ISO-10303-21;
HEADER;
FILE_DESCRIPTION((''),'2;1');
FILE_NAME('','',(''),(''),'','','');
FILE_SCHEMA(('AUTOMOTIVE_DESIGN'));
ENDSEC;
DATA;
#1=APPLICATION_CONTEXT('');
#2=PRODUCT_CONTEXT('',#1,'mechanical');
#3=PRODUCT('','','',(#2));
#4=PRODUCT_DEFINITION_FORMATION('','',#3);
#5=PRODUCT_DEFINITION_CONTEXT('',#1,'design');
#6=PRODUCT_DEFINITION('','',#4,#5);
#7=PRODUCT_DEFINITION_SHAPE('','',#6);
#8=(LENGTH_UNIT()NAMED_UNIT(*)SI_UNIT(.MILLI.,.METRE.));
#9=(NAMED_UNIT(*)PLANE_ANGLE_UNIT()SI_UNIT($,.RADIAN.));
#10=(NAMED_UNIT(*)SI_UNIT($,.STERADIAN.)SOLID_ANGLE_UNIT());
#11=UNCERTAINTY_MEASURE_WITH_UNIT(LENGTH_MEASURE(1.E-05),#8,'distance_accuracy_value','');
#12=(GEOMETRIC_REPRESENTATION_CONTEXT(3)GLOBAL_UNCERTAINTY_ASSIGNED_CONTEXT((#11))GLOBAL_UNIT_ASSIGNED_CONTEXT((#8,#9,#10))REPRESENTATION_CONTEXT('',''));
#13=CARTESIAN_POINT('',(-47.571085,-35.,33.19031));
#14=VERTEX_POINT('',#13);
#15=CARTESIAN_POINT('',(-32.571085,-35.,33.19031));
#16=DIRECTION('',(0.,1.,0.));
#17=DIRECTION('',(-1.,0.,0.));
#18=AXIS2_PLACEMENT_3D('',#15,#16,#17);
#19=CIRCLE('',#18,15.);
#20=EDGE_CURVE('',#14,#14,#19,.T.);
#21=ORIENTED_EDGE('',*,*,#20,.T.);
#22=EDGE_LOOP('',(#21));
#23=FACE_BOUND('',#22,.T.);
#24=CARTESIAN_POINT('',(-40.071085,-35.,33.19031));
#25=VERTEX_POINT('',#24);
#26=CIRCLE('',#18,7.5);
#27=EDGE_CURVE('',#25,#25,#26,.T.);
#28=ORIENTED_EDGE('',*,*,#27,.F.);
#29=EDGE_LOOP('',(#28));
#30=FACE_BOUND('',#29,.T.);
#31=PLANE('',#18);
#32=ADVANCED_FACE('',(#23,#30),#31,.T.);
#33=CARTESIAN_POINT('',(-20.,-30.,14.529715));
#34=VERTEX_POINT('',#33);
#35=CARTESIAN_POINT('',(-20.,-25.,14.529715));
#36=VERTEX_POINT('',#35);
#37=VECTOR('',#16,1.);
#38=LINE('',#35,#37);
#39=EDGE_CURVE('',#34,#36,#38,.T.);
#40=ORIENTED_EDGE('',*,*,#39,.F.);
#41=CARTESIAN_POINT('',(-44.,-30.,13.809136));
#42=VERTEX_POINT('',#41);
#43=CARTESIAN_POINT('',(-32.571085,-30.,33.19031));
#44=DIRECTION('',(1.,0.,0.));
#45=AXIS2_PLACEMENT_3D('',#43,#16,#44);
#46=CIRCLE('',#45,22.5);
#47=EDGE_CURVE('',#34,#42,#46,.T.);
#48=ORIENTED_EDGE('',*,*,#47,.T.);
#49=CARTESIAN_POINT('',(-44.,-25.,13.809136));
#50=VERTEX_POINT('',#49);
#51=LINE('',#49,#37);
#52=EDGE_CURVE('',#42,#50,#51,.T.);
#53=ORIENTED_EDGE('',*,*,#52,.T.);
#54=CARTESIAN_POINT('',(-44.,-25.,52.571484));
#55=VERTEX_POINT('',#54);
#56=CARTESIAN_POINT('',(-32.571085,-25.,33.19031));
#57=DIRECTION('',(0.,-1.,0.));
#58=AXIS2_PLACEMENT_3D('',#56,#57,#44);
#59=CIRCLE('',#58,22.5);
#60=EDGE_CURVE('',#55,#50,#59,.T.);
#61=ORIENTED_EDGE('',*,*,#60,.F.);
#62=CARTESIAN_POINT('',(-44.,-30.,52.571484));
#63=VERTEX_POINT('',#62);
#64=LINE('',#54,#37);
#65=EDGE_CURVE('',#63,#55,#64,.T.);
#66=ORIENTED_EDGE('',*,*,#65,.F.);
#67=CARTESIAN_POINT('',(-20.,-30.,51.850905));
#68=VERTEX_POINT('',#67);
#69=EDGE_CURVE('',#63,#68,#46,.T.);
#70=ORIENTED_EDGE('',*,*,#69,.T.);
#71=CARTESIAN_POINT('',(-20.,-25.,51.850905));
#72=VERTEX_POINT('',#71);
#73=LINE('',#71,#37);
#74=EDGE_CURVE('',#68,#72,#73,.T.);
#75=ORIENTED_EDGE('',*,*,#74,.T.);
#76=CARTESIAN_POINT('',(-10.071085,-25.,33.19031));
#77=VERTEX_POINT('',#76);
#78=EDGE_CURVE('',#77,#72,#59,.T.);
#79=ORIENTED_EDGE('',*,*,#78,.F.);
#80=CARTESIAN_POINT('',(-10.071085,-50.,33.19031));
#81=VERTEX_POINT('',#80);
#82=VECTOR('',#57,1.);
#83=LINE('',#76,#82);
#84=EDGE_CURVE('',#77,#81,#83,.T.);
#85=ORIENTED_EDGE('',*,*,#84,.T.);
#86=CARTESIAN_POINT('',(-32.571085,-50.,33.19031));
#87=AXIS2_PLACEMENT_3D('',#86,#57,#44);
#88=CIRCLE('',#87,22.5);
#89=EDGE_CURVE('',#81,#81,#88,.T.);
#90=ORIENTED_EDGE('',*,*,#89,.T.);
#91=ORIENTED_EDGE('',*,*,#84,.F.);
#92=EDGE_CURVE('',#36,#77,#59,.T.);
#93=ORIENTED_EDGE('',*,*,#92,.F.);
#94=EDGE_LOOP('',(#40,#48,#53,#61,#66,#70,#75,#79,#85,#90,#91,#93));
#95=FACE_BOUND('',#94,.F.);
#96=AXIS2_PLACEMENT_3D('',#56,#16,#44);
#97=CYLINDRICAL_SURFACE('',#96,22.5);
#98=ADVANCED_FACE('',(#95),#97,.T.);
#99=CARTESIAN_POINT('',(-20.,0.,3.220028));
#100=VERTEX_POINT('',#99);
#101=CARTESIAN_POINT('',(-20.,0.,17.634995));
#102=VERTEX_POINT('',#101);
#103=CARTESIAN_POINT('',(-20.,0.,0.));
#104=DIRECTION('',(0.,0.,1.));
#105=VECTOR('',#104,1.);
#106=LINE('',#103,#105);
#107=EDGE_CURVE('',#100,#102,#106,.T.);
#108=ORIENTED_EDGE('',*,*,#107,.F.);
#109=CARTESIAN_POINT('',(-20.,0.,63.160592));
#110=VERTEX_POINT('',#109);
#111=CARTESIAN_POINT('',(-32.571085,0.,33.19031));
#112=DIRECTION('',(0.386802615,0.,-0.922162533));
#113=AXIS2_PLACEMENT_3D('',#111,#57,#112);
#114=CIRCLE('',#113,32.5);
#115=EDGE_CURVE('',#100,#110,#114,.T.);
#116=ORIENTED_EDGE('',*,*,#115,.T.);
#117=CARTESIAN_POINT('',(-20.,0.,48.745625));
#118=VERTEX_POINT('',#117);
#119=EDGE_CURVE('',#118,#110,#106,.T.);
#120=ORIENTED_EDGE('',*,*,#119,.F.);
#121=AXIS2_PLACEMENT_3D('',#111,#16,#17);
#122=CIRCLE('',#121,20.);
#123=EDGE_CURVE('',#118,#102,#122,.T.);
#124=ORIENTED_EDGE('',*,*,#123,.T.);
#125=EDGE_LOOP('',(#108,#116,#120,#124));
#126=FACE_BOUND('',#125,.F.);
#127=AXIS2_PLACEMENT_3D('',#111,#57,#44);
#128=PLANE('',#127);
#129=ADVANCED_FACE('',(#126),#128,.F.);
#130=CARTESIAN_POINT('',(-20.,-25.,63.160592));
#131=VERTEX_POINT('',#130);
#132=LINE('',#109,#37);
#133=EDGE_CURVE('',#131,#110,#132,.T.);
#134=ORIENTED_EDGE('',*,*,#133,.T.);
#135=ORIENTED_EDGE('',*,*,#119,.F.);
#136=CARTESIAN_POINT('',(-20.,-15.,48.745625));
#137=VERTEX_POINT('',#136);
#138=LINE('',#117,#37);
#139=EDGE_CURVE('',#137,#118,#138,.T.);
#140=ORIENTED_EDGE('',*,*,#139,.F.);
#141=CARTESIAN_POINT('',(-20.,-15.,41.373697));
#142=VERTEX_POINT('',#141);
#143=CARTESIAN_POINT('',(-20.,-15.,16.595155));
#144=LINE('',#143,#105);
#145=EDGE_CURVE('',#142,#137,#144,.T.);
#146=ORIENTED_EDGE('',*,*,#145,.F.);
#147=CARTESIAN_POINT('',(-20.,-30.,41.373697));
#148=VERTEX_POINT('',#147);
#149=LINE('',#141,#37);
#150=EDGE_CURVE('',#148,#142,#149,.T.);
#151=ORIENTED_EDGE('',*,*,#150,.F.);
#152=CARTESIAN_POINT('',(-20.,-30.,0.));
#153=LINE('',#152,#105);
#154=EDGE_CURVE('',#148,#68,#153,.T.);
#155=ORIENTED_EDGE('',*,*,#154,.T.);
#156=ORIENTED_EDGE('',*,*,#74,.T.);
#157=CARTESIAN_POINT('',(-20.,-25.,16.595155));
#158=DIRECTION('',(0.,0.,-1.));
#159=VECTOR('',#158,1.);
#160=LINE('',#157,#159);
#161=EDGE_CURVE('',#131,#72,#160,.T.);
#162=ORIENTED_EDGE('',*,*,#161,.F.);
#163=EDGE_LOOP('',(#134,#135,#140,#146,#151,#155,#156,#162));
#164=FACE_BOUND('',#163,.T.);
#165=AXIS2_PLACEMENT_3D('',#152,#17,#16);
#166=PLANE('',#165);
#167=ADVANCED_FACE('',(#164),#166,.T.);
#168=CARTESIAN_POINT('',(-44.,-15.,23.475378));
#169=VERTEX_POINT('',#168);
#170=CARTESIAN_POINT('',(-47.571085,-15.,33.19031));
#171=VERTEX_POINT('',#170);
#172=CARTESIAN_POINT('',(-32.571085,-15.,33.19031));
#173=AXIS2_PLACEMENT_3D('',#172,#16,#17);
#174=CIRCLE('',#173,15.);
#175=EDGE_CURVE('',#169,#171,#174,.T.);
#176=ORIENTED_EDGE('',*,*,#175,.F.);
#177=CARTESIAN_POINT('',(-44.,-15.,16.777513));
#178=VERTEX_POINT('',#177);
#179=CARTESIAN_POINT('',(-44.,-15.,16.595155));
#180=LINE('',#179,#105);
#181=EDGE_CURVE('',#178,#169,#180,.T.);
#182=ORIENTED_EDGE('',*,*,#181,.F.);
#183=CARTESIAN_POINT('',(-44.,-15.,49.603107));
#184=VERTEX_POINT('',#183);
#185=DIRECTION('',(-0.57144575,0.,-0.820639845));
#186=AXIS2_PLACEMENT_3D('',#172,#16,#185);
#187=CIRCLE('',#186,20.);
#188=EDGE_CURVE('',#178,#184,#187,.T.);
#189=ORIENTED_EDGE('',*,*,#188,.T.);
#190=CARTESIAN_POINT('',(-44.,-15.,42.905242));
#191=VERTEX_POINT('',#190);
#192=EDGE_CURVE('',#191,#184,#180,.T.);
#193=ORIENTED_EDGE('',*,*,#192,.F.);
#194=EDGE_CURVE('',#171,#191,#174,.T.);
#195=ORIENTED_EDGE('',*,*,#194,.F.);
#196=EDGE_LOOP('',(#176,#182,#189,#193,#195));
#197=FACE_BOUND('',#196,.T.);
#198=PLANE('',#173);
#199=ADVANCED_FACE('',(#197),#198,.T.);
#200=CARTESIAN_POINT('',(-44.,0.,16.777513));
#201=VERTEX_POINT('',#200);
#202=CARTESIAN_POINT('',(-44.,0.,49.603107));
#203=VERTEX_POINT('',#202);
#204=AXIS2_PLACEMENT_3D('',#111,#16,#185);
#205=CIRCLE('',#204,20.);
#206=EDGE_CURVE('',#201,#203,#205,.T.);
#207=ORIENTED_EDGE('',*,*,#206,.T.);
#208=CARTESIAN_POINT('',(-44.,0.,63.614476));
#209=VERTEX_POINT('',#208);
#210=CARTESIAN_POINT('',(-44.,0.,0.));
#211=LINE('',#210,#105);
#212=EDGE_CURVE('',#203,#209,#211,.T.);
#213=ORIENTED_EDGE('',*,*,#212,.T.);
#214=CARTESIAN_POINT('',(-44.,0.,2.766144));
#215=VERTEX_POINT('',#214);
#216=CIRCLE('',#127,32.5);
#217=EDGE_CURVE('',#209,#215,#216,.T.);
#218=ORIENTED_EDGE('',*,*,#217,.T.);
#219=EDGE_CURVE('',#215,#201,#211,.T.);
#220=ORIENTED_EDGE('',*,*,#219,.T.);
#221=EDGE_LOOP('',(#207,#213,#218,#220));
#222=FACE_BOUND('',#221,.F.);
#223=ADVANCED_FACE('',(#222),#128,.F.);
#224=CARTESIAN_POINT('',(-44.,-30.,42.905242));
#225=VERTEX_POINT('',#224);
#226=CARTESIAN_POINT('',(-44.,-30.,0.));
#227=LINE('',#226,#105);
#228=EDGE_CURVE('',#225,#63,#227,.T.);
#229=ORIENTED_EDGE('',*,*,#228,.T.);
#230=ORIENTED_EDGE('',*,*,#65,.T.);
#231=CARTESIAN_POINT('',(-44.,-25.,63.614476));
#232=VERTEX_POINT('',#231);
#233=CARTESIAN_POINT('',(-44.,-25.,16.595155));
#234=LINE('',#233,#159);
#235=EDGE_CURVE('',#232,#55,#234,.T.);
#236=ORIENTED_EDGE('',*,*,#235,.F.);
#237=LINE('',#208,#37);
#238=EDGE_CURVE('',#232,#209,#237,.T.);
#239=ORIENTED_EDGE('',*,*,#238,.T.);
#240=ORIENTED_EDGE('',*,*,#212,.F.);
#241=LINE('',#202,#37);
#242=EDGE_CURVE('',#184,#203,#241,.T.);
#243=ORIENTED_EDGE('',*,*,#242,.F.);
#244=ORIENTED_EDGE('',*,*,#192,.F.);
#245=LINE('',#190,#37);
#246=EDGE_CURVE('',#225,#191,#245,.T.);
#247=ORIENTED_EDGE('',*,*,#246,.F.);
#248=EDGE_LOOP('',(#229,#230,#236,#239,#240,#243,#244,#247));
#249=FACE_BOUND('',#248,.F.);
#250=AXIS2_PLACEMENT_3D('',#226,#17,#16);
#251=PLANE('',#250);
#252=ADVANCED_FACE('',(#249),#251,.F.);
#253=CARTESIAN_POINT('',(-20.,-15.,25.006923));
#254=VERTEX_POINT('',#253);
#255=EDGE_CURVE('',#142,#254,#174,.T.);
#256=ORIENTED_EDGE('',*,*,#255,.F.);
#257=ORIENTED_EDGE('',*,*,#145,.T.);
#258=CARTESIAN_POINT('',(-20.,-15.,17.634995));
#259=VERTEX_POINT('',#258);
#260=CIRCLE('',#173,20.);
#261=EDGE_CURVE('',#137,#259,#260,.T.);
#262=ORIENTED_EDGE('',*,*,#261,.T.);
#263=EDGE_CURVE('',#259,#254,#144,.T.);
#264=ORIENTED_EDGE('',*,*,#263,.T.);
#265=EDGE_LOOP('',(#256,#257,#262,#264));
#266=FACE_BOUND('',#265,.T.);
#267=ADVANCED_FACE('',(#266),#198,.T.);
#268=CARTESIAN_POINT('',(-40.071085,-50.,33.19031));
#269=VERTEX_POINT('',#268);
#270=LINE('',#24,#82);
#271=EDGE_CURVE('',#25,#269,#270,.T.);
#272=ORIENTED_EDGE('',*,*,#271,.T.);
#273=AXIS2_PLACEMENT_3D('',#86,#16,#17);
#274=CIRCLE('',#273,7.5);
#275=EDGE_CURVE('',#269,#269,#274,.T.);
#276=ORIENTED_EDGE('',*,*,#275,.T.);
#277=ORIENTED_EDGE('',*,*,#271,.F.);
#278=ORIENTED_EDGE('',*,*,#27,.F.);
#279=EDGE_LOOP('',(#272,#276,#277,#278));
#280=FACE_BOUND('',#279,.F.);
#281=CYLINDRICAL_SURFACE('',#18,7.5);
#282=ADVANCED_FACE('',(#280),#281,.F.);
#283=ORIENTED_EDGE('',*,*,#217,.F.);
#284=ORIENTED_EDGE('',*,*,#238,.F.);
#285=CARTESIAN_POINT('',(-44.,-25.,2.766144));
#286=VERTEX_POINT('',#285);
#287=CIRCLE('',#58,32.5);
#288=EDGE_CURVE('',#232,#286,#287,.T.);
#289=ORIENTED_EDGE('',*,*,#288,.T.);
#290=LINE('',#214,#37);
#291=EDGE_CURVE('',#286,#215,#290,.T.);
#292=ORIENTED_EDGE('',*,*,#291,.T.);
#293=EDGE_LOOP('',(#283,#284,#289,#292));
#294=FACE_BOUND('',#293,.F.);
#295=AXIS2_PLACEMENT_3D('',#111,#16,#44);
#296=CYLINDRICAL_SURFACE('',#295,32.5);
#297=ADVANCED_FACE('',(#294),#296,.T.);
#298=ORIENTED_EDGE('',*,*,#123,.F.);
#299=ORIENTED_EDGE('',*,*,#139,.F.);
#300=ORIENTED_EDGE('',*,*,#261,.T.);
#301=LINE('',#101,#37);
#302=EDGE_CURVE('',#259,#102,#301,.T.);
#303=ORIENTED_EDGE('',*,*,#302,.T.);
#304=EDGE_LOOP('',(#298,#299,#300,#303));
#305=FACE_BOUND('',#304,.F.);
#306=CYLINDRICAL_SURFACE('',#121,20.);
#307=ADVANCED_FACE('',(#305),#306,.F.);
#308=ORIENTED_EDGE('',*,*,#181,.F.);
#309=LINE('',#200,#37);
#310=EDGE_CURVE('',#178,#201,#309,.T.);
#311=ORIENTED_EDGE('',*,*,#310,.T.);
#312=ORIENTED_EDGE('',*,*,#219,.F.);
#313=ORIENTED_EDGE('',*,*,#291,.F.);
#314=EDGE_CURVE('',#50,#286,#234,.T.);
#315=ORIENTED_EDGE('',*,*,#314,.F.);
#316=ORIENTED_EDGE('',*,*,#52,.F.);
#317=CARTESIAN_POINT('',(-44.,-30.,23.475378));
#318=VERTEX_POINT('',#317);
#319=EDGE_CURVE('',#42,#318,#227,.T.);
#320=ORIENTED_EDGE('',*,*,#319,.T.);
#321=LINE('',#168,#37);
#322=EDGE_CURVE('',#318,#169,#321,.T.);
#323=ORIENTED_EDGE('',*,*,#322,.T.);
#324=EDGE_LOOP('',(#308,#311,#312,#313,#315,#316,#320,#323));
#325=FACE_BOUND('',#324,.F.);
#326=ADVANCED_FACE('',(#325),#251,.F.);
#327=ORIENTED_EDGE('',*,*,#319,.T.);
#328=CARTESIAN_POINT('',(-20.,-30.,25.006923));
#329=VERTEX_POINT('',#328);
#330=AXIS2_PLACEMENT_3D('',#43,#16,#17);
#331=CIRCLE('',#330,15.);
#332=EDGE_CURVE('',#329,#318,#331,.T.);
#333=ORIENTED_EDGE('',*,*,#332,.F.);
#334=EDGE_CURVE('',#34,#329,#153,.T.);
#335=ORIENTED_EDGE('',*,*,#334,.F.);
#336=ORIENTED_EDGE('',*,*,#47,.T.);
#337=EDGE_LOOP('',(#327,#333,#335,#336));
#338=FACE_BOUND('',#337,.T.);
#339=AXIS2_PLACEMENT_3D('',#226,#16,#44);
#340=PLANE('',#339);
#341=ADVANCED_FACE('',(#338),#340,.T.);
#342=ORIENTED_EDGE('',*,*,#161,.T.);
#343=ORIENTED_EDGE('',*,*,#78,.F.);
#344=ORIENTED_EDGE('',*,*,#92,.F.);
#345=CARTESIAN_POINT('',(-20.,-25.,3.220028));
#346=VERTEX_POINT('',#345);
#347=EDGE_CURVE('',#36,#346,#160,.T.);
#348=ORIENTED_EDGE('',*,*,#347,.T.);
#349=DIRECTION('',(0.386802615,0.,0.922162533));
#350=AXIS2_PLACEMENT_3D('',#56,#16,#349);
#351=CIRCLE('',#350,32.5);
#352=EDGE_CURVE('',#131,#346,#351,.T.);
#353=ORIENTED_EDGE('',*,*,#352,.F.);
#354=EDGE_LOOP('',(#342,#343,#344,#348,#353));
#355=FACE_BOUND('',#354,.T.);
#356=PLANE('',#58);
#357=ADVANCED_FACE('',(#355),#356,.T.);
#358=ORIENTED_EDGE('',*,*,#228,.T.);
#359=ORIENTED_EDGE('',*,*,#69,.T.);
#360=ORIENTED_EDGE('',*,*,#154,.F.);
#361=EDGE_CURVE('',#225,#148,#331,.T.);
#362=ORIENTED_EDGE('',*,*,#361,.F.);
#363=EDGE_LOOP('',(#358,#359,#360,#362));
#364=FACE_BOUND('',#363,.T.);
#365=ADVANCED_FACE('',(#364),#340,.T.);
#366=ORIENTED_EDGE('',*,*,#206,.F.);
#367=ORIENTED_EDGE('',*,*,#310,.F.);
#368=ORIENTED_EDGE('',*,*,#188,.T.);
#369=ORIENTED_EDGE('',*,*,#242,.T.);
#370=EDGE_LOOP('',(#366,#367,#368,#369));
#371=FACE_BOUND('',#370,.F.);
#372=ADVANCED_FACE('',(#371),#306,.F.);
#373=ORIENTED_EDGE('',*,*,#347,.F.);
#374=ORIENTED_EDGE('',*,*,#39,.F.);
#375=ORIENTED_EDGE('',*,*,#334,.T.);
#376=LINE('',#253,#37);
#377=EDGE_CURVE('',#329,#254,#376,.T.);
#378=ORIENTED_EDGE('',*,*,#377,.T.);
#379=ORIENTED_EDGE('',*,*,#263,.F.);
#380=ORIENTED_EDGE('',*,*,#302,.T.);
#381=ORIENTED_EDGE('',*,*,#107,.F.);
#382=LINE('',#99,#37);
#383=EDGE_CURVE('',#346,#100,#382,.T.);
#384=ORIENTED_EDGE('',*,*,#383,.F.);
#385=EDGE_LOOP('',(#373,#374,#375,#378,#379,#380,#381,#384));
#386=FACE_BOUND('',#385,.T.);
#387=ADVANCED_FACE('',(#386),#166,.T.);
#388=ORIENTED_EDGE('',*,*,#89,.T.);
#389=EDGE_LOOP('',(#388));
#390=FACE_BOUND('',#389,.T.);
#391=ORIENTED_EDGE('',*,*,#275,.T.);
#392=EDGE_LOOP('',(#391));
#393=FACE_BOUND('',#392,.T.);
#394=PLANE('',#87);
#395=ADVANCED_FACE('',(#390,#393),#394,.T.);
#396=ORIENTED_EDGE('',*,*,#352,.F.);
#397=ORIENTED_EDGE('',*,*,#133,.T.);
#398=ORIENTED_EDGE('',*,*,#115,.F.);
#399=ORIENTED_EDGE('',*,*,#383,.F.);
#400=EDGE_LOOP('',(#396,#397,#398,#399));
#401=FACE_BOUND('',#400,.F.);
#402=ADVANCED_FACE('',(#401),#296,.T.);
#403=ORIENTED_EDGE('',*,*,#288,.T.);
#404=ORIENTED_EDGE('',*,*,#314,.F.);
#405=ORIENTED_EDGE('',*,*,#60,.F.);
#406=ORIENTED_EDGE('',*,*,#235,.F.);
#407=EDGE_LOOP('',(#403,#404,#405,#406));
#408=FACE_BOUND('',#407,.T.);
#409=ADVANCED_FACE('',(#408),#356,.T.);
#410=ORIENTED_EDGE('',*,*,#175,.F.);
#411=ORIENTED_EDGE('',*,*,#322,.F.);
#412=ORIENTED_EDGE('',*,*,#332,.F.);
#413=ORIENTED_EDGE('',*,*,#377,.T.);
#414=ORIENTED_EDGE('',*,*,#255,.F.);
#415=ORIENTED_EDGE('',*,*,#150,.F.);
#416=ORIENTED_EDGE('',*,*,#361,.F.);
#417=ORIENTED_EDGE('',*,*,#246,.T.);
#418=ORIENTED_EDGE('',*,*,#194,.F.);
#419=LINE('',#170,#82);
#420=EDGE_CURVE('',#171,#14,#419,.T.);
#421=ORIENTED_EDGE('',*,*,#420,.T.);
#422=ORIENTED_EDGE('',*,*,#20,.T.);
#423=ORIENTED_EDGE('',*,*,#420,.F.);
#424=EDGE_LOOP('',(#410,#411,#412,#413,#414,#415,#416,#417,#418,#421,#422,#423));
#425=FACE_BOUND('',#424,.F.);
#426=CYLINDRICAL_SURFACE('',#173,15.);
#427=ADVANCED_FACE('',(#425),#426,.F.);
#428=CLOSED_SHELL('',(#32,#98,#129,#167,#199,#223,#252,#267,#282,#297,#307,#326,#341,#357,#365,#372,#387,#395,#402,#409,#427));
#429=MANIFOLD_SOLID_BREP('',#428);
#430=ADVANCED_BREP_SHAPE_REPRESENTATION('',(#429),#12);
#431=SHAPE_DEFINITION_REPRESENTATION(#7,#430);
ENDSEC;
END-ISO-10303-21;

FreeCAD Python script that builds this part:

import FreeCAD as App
import Part
import Sketcher
from FreeCAD import Vector
Q = App.Units.Quantity

doc = App.newDocument("Part")
body = doc.addObject("PartDesign::Body", "Body")

# Sketch on XZ plane
sketch1 = body.newObject("Sketcher::SketchObject", "Sketch")
sketch1.AttachmentSupport = (doc.getObject("XZ_Plane"), [""])
sketch1.MapMode = "FlatFace"
sketch1.addGeometry(Part.Circle(Vector(-32.571085, 33.19031, 0), Vector(0, 0, 1), 32.5), False)
sketch1.addConstraint(Sketcher.Constraint("Diameter", 0, Q("65 mm")))
sketch1.addConstraint(Sketcher.Constraint("DistanceY", -1, 1, 0, 3, Q("33.19031 mm")))
sketch1.addConstraint(Sketcher.Constraint("DistanceX", 0, 3, -1, 1, Q("32.571085 mm")))
pad1 = body.newObject("PartDesign::Pad", "Pad")
pad1.Profile = sketch1
pad1.Length = 25

# Sketch on XZ plane
sketch2 = body.newObject("Sketcher::SketchObject", "Sketch001")
sketch2.AttachmentSupport = (doc.getObject("XZ_Plane"), [""])
sketch2.MapMode = "FlatFace"
sketch2.AttachmentOffset = App.Placement(Vector(0, 0, 25), App.Rotation())
sketch2.addGeometry(Part.Circle(Vector(-32.571085, 33.19031, 0), Vector(0, 0, 1), 22.5), False)
sketch2.addConstraint(Sketcher.Constraint("Diameter", 0, Q("45 mm")))
sketch2.addConstraint(Sketcher.Constraint("DistanceY", -1, 1, 0, 3, Q("33.19031 mm")))
sketch2.addConstraint(Sketcher.Constraint("DistanceX", 0, 3, -1, 1, Q("32.571085 mm")))
pad2 = body.newObject("PartDesign::Pad", "Pad001")
pad2.Profile = sketch2
pad2.Length = 25

# Sketch on XZ plane
sketch3 = body.newObject("Sketcher::SketchObject", "Sketch002")
sketch3.AttachmentSupport = (doc.getObject("XZ_Plane"), [""])
sketch3.MapMode = "FlatFace"
sketch3.addGeometry(Part.Circle(Vector(-32.571085, 33.19031, 0), Vector(0, 0, 1), 20), False)
sketch3.addConstraint(Sketcher.Constraint("Diameter", 0, Q("40 mm")))
sketch3.addConstraint(Sketcher.Constraint("DistanceY", -1, 1, 0, 3, Q("33.19031 mm")))
sketch3.addConstraint(Sketcher.Constraint("DistanceX", 0, 3, -1, 1, Q("32.571085 mm")))
pocket1 = body.newObject("PartDesign::Pocket", "Pocket")
pocket1.Profile = sketch3
pocket1.Length = 15
pocket1.Reversed = True

# Sketch on XZ plane
sketch4 = body.newObject("Sketcher::SketchObject", "Sketch003")
sketch4.AttachmentSupport = (doc.getObject("XZ_Plane"), [""])
sketch4.MapMode = "FlatFace"
sketch4.AttachmentOffset = App.Placement(Vector(0, 0, 15), App.Rotation())
sketch4.addGeometry(Part.Circle(Vector(-32.571085, 33.19031, 0), Vector(0, 0, 1), 15), False)
sketch4.addConstraint(Sketcher.Constraint("Diameter", 0, Q("30 mm")))
sketch4.addConstraint(Sketcher.Constraint("DistanceY", -1, 1, 0, 3, Q("33.19031 mm")))
sketch4.addConstraint(Sketcher.Constraint("DistanceX", 0, 3, -1, 1, Q("32.571085 mm")))
pocket2 = body.newObject("PartDesign::Pocket", "Pocket001")
pocket2.Profile = sketch4
pocket2.Length = 20
pocket2.Reversed = True

# Sketch on XY plane
sketch5 = body.newObject("Sketcher::SketchObject", "Sketch004")
sketch5.AttachmentSupport = (doc.getObject("XY_Plane"), [""])
sketch5.MapMode = "FlatFace"
sketch5.addGeometry(Part.LineSegment(Vector(-44, 0, 0), Vector(-44, -30, 0)), False)
sketch5.addGeometry(Part.LineSegment(Vector(-44, -30, 0), Vector(-20, -30, 0)), False)
sketch5.addGeometry(Part.LineSegment(Vector(-20, -30, 0), Vector(-20, 0, 0)), False)
sketch5.addGeometry(Part.LineSegment(Vector(-20, 0, 0), Vector(-44, 0, 0)), False)
sketch5.addConstraint(Sketcher.Constraint("Coincident", 0, 2, 1, 1))
sketch5.addConstraint(Sketcher.Constraint("Coincident", 1, 2, 2, 1))
sketch5.addConstraint(Sketcher.Constraint("Coincident", 2, 2, 3, 1))
sketch5.addConstraint(Sketcher.Constraint("Coincident", 3, 2, 0, 1))
sketch5.addConstraint(Sketcher.Constraint("Vertical", 0))
sketch5.addConstraint(Sketcher.Constraint("Horizontal", 1))
sketch5.addConstraint(Sketcher.Constraint("Vertical", 2))
sketch5.addConstraint(Sketcher.Constraint("Horizontal", 3))
sketch5.addConstraint(Sketcher.Constraint("PointOnObject", 2, 2, -1))
sketch5.addConstraint(Sketcher.Constraint("DistanceX", 1, 1, 1, 2, Q("24 mm")))
sketch5.addConstraint(Sketcher.Constraint("DistanceY", 0, 2, 0, 1, Q("30 mm")))
sketch5.addConstraint(Sketcher.Constraint("DistanceX", 0, 2, -1, 1, Q("44 mm")))
pocket3 = body.newObject("PartDesign::Pocket", "Pocket002")
pocket3.Profile = sketch5
pocket3.Length = 100
pocket3.Reversed = True

# Sketch on XZ plane
sketch6 = body.newObject("Sketcher::SketchObject", "Sketch005")
sketch6.AttachmentSupport = (doc.getObject("XZ_Plane"), [""])
sketch6.MapMode = "FlatFace"
sketch6.AttachmentOffset = App.Placement(Vector(0, 0, 35), App.Rotation())
sketch6.addGeometry(Part.Circle(Vector(-32.571085, 33.19031, 0), Vector(0, 0, 1), 7.5), False)
sketch6.addConstraint(Sketcher.Constraint("Diameter", 0, Q("15 mm")))
sketch6.addConstraint(Sketcher.Constraint("DistanceY", -1, 1, 0, 3, Q("33.19031 mm")))
sketch6.addConstraint(Sketcher.Constraint("DistanceX", 0, 3, -1, 1, Q("32.571085 mm")))
pocket4 = body.newObject("PartDesign::Pocket", "Pocket003")
pocket4.Profile = sketch6
pocket4.Length = 25
pocket4.Reversed = True

doc.recompute()
